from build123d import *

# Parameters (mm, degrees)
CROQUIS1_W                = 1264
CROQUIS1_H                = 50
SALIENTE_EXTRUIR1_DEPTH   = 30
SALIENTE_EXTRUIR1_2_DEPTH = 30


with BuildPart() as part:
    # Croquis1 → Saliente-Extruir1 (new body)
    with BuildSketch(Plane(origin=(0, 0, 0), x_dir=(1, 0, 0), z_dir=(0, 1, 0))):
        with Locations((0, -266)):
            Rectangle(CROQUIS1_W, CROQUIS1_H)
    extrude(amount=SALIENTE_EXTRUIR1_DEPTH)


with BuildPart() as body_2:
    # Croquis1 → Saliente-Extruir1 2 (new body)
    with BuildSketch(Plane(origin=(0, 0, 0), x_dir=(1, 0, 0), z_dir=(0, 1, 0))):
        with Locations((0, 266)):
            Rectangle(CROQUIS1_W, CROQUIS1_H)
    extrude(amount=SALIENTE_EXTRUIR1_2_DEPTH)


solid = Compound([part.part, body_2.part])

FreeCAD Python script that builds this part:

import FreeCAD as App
import Part
import Sketcher
from FreeCAD import Vector

doc = App.newDocument("Part")
body = doc.addObject("PartDesign::Body", "Body")

# Sketch on XZ plane
sketch1 = body.newObject("Sketcher::SketchObject", "Sketch")
sketch1.AttachmentSupport = (doc.getObject("XZ_Plane"), [""])
sketch1.MapMode = "FlatFace"
sketch1.addGeometry([
    Part.LineSegment(Vector(-632, 241, 0), Vector(-632, 291, 0)),
    Part.LineSegment(Vector(-632, 291, 0), Vector(632, 291, 0)),
    Part.LineSegment(Vector(632, 291, 0), Vector(632, 241, 0)),
    Part.LineSegment(Vector(632, 241, 0), Vector(-632, 241, 0)),
], False)
sketch1.addConstraint([
    Sketcher.Constraint("Coincident", 0, 2, 1, 1),
    Sketcher.Constraint("Coincident", 1, 2, 2, 1),
    Sketcher.Constraint("Coincident", 2, 2, 3, 1),
    Sketcher.Constraint("Coincident", 3, 2, 0, 1),
    Sketcher.Constraint("Vertical", 0),
    Sketcher.Constraint("Horizontal", 1),
    Sketcher.Constraint("Vertical", 2),
    Sketcher.Constraint("Horizontal", 3),
    Sketcher.Constraint("DistanceX", 1, 1, 1, 2, 1264.0),
    Sketcher.Constraint("DistanceY", 0, 1, 0, 2, 50.0),
    Sketcher.Constraint("DistanceX", 0, 2, -1, 1, 632.0),
    Sketcher.Constraint("DistanceY", -1, 1, 0, 2, 291.0),
])
pad1 = body.newObject("PartDesign::Pad", "Pad")
pad1.Profile = sketch1
pad1.Length = 30
pad1.Reversed = True
body2 = doc.addObject("PartDesign::Body", "Body001")

# Sketch on XZ plane
sketch2 = body2.newObject("Sketcher::SketchObject", "Sketch001")
sketch2.AttachmentSupport = (doc.getObject("XZ_Plane001"), [""])
sketch2.MapMode = "FlatFace"
sketch2.addGeometry([
    Part.LineSegment(Vector(-632, -291, 0), Vector(-632, -241, 0)),
    Part.LineSegment(Vector(-632, -241, 0), Vector(632, -241, 0)),
    Part.LineSegment(Vector(632, -241, 0), Vector(632, -291, 0)),
    Part.LineSegment(Vector(632, -291, 0), Vector(-632, -291, 0)),
], False)
sketch2.addConstraint([
    Sketcher.Constraint("Coincident", 0, 2, 1, 1),
    Sketcher.Constraint("Coincident", 1, 2, 2, 1),
    Sketcher.Constraint("Coincident", 2, 2, 3, 1),
    Sketcher.Constraint("Coincident", 3, 2, 0, 1),
    Sketcher.Constraint("Vertical", 0),
    Sketcher.Constraint("Horizontal", 1),
    Sketcher.Constraint("Vertical", 2),
    Sketcher.Constraint("Horizontal", 3),
    Sketcher.Constraint("DistanceX", 1, 1, 1, 2, 1264.0),
    Sketcher.Constraint("DistanceY", 0, 1, 0, 2, 50.0),
    Sketcher.Constraint("DistanceX", 0, 2, -1, 1, 632.0),
    Sketcher.Constraint("DistanceY", 0, 2, -1, 1, 241.0),
])
pad2 = body2.newObject("PartDesign::Pad", "Pad001")
pad2.Profile = sketch2
pad2.Length = 30
pad2.Reversed = True

doc.recompute()
